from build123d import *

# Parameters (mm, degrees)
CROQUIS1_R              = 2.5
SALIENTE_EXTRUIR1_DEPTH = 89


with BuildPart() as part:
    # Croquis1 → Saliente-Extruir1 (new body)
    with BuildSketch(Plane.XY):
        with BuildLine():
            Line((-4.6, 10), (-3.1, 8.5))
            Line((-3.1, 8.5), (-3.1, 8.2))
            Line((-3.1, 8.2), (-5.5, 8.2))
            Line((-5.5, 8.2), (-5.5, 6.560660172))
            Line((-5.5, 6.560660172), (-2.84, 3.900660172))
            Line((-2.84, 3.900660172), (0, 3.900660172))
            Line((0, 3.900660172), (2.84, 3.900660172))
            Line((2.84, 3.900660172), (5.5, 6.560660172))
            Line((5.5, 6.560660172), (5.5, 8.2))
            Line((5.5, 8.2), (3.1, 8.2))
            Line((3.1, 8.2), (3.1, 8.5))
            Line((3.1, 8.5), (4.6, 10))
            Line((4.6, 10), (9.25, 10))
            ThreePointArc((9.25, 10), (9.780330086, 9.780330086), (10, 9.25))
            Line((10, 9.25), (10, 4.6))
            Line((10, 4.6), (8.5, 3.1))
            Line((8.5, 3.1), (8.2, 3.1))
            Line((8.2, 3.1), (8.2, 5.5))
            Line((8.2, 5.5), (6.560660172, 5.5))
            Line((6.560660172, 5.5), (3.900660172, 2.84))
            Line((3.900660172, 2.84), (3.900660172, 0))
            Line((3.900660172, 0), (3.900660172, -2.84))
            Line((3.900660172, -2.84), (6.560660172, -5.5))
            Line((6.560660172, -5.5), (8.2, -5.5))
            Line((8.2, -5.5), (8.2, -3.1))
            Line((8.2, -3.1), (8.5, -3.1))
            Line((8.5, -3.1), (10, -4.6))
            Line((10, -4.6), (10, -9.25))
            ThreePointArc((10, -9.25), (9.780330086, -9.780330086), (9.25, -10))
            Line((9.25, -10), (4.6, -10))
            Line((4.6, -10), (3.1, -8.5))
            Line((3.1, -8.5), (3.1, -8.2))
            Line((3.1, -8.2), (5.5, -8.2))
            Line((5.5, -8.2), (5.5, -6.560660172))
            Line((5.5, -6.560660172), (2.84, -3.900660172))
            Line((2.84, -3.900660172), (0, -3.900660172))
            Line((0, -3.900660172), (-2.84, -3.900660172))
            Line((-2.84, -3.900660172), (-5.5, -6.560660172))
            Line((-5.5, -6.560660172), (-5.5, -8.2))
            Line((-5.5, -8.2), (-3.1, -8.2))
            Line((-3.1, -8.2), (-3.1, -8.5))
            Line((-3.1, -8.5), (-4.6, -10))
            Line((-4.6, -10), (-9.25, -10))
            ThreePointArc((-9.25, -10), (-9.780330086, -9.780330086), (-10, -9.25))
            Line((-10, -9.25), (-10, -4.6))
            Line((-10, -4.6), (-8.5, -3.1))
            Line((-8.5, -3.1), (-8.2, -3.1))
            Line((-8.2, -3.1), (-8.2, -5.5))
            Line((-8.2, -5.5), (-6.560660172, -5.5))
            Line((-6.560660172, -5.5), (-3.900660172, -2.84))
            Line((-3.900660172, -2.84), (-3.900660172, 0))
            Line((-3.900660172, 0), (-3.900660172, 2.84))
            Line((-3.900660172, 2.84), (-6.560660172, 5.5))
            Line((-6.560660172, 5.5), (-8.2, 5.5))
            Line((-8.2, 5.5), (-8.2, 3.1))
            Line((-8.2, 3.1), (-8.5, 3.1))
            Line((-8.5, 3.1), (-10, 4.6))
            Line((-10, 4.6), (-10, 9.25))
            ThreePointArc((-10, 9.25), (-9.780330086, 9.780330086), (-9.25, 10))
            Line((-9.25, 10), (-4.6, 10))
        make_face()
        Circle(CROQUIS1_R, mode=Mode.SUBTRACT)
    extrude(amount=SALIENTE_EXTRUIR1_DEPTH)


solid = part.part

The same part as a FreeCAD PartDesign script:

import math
import FreeCAD as App
import Part
import Sketcher

doc = App.newDocument("Part")
body = doc.addObject("PartDesign::Body", "Body")

sketch1 = body.newObject("Sketcher::SketchObject", "Sketch")
sketch1.AttachmentSupport = (doc.getObject("XY_Plane"), [""])
sketch1.MapMode = "FlatFace"
sketch1.addGeometry(Part.LineSegment(App.Vector(-3.1, 8.5, 0), App.Vector(-4.6, 10, 0)), False)
sketch1.addGeometry(Part.LineSegment(App.Vector(-4.6, 10, 0), App.Vector(-9.25, 10, 0)), False)
sketch1.addGeometry(Part.ArcOfCircle(Part.Circle(App.Vector(-9.25, 9.25, 0), App.Vector(0, 0, 1), 0.75), math.radians(90), math.radians(180)), False)
sketch1.addGeometry(Part.LineSegment(App.Vector(-10, 9.25, 0), App.Vector(-10, 4.6, 0)), False)
sketch1.addGeometry(Part.LineSegment(App.Vector(-10, 4.6, 0), App.Vector(-8.5, 3.1, 0)), False)
sketch1.addGeometry(Part.LineSegment(App.Vector(-8.5, 3.1, 0), App.Vector(-8.2, 3.1, 0)), False)
sketch1.addGeometry(Part.LineSegment(App.Vector(-8.2, 3.1, 0), App.Vector(-8.2, 5.5, 0)), False)
sketch1.addGeometry(Part.LineSegment(App.Vector(-8.2, 5.5, 0), App.Vector(-6.56, 5.5, 0)), False)
sketch1.addGeometry(Part.LineSegment(App.Vector(-6.56, 5.5, 0), App.Vector(-3.9, 2.84, 0)), False)
sketch1.addGeometry(Part.LineSegment(App.Vector(-3.9, 2.84, 0), App.Vector(-3.9, -2.84, 0)), False)
sketch1.addGeometry(Part.LineSegment(App.Vector(-3.9, -2.84, 0), App.Vector(-6.56, -5.5, 0)), False)
sketch1.addGeometry(Part.LineSegment(App.Vector(-6.56, -5.5, 0), App.Vector(-8.2, -5.5, 0)), False)
sketch1.addGeometry(Part.LineSegment(App.Vector(-8.2, -5.5, 0), App.Vector(-8.2, -3.1, 0)), False)
sketch1.addGeometry(Part.LineSegment(App.Vector(-8.2, -3.1, 0), App.Vector(-8.5, -3.1, 0)), False)
sketch1.addGeometry(Part.LineSegment(App.Vector(-8.5, -3.1, 0), App.Vector(-10, -4.6, 0)), False)
sketch1.addGeometry(Part.LineSegment(App.Vector(-10, -4.6, 0), App.Vector(-10, -9.25, 0)), False)
sketch1.addGeometry(Part.ArcOfCircle(Part.Circle(App.Vector(-9.25, -9.25, 0), App.Vector(0, 0, 1), 0.75), math.radians(180), math.radians(270)), False)
sketch1.addGeometry(Part.LineSegment(App.Vector(-9.25, -10, 0), App.Vector(-4.6, -10, 0)), False)
sketch1.addGeometry(Part.LineSegment(App.Vector(-4.6, -10, 0), App.Vector(-3.1, -8.5, 0)), False)
sketch1.addGeometry(Part.LineSegment(App.Vector(-3.1, -8.5, 0), App.Vector(-3.1, -8.2, 0)), False)
sketch1.addGeometry(Part.LineSegment(App.Vector(-3.1, -8.2, 0), App.Vector(-5.5, -8.2, 0)), False)
sketch1.addGeometry(Part.LineSegment(App.Vector(-5.5, -8.2, 0), App.Vector(-5.5, -6.56, 0)), False)
sketch1.addGeometry(Part.LineSegment(App.Vector(-5.5, -6.56, 0), App.Vector(-2.84, -3.9, 0)), False)
sketch1.addGeometry(Part.LineSegment(App.Vector(-2.84, -3.9, 0), App.Vector(2.84, -3.9, 0)), False)
sketch1.addGeometry(Part.LineSegment(App.Vector(2.84, -3.9, 0), App.Vector(5.5, -6.56, 0)), False)
sketch1.addGeometry(Part.LineSegment(App.Vector(5.5, -6.56, 0), App.Vector(5.5, -8.2, 0)), False)
sketch1.addGeometry(Part.LineSegment(App.Vector(5.5, -8.2, 0), App.Vector(3.1, -8.2, 0)), False)
sketch1.addGeometry(Part.LineSegment(App.Vector(3.1, -8.2, 0), App.Vector(3.1, -8.5, 0)), False)
sketch1.addGeometry(Part.LineSegment(App.Vector(3.1, -8.5, 0), App.Vector(4.6, -10, 0)), False)
sketch1.addGeometry(Part.LineSegment(App.Vector(4.6, -10, 0), App.Vector(9.25, -10, 0)), False)
sketch1.addGeometry(Part.ArcOfCircle(Part.Circle(App.Vector(9.25, -9.25, 0), App.Vector(0, 0, 1), 0.75), math.radians(-90), math.radians(0)), False)
sketch1.addGeometry(Part.LineSegment(App.Vector(10, -9.25, 0), App.Vector(10, -4.6, 0)), False)
sketch1.addGeometry(Part.LineSegment(App.Vector(10, -4.6, 0), App.Vector(8.5, -3.1, 0)), False)
sketch1.addGeometry(Part.LineSegment(App.Vector(8.5, -3.1, 0), App.Vector(8.2, -3.1, 0)), False)
sketch1.addGeometry(Part.LineSegment(App.Vector(8.2, -3.1, 0), App.Vector(8.2, -5.5, 0)), False)
sketch1.addGeometry(Part.LineSegment(App.Vector(8.2, -5.5, 0), App.Vector(6.56, -5.5, 0)), False)
sketch1.addGeometry(Part.LineSegment(App.Vector(6.56, -5.5, 0), App.Vector(3.9, -2.84, 0)), False)
sketch1.addGeometry(Part.LineSegment(App.Vector(3.9, -2.84, 0), App.Vector(3.9, 2.84, 0)), False)
sketch1.addGeometry(Part.LineSegment(App.Vector(3.9, 2.84, 0), App.Vector(6.56, 5.5, 0)), False)
sketch1.addGeometry(Part.LineSegment(App.Vector(6.56, 5.5, 0), App.Vector(8.2, 5.5, 0)), False)
sketch1.addGeometry(Part.LineSegment(App.Vector(8.2, 5.5, 0), App.Vector(8.2, 3.1, 0)), False)
sketch1.addGeometry(Part.LineSegment(App.Vector(8.2, 3.1, 0), App.Vector(8.5, 3.1, 0)), False)
sketch1.addGeometry(Part.LineSegment(App.Vector(8.5, 3.1, 0), App.Vector(10, 4.6, 0)), False)
sketch1.addGeometry(Part.LineSegment(App.Vector(10, 4.6, 0), App.Vector(10, 9.25, 0)), False)
sketch1.addGeometry(Part.ArcOfCircle(Part.Circle(App.Vector(9.25, 9.25, 0), App.Vector(0, 0, 1), 0.75), math.radians(0), math.radians(90)), False)
sketch1.addGeometry(Part.LineSegment(App.Vector(9.25, 10, 0), App.Vector(4.6, 10, 0)), False)
sketch1.addGeometry(Part.LineSegment(App.Vector(4.6, 10, 0), App.Vector(3.1, 8.5, 0)), False)
sketch1.addGeometry(Part.LineSegment(App.Vector(3.1, 8.5, 0), App.Vector(3.1, 8.2, 0)), False)
sketch1.addGeometry(Part.LineSegment(App.Vector(3.1, 8.2, 0), App.Vector(5.5, 8.2, 0)), False)
sketch1.addGeometry(Part.LineSegment(App.Vector(5.5, 8.2, 0), App.Vector(5.5, 6.56, 0)), False)
sketch1.addGeometry(Part.LineSegment(App.Vector(5.5, 6.56, 0), App.Vector(2.84, 3.9, 0)), False)
sketch1.addGeometry(Part.LineSegment(App.Vector(2.84, 3.9, 0), App.Vector(-2.84, 3.9, 0)), False)
sketch1.addGeometry(Part.LineSegment(App.Vector(-2.84, 3.9, 0), App.Vector(-5.5, 6.56, 0)), False)
sketch1.addGeometry(Part.LineSegment(App.Vector(-5.5, 6.56, 0), App.Vector(-5.5, 8.2, 0)), False)
sketch1.addGeometry(Part.LineSegment(App.Vector(-5.5, 8.2, 0), App.Vector(-3.1, 8.2, 0)), False)
sketch1.addGeometry(Part.LineSegment(App.Vector(-3.1, 8.2, 0), App.Vector(-3.1, 8.5, 0)), False)
sketch1.addGeometry(Part.Circle(App.Vector(0, 0, 0), App.Vector(0, 0, 1), 2.5), False)
sketch1.addConstraint(Sketcher.Constraint("Coincident", 0, 2, 1, 1))
sketch1.addConstraint(Sketcher.Constraint("Tangent", 1, 2, 2, 1))
sketch1.addConstraint(Sketcher.Constraint("Tangent", 2, 2, 3, 1))
sketch1.addConstraint(Sketcher.Constraint("Coincident", 3, 2, 4, 1))
sketch1.addConstraint(Sketcher.Constraint("Coincident", 4, 2, 5, 1))
sketch1.addConstraint(Sketcher.Constraint("Coincident", 5, 2, 6, 1))
sketch1.addConstraint(Sketcher.Constraint("Coincident", 6, 2, 7, 1))
sketch1.addConstraint(Sketcher.Constraint("Coincident", 7, 2, 8, 1))
sketch1.addConstraint(Sketcher.Constraint("Coincident", 8, 2, 9, 1))
sketch1.addConstraint(Sketcher.Constraint("Coincident", 9, 2, 10, 1))
sketch1.addConstraint(Sketcher.Constraint("Coincident", 10, 2, 11, 1))
sketch1.addConstraint(Sketcher.Constraint("Coincident", 11, 2, 12, 1))
sketch1.addConstraint(Sketcher.Constraint("Coincident", 12, 2, 13, 1))
sketch1.addConstraint(Sketcher.Constraint("Coincident", 13, 2, 14, 1))
sketch1.addConstraint(Sketcher.Constraint("Coincident", 14, 2, 15, 1))
sketch1.addConstraint(Sketcher.Constraint("Tangent", 15, 2, 16, 1))
sketch1.addConstraint(Sketcher.Constraint("Tangent", 16, 2, 17, 1))
sketch1.addConstraint(Sketcher.Constraint("Coincident", 17, 2, 18, 1))
sketch1.addConstraint(Sketcher.Constraint("Coincident", 18, 2, 19, 1))
sketch1.addConstraint(Sketcher.Constraint("Coincident", 19, 2, 20, 1))
sketch1.addConstraint(Sketcher.Constraint("Coincident", 20, 2, 21, 1))
sketch1.addConstraint(Sketcher.Constraint("Coincident", 21, 2, 22, 1))
sketch1.addConstraint(Sketcher.Constraint("Coincident", 22, 2, 23, 1))
sketch1.addConstraint(Sketcher.Constraint("Coincident", 23, 2, 24, 1))
sketch1.addConstraint(Sketcher.Constraint("Coincident", 24, 2, 25, 1))
sketch1.addConstraint(Sketcher.Constraint("Coincident", 25, 2, 26, 1))
sketch1.addConstraint(Sketcher.Constraint("Coincident", 26, 2, 27, 1))
sketch1.addConstraint(Sketcher.Constraint("Coincident", 27, 2, 28, 1))
sketch1.addConstraint(Sketcher.Constraint("Coincident", 28, 2, 29, 1))
sketch1.addConstraint(Sketcher.Constraint("Tangent", 29, 2, 30, 1))
sketch1.addConstraint(Sketcher.Constraint("Tangent", 30, 2, 31, 1))
sketch1.addConstraint(Sketcher.Constraint("Coincident", 31, 2, 32, 1))
sketch1.addConstraint(Sketcher.Constraint("Coincident", 32, 2, 33, 1))
sketch1.addConstraint(Sketcher.Constraint("Coincident", 33, 2, 34, 1))
sketch1.addConstraint(Sketcher.Constraint("Coincident", 34, 2, 35, 1))
sketch1.addConstraint(Sketcher.Constraint("Coincident", 35, 2, 36, 1))
sketch1.addConstraint(Sketcher.Constraint("Coincident", 36, 2, 37, 1))
sketch1.addConstraint(Sketcher.Constraint("Coincident", 37, 2, 38, 1))
sketch1.addConstraint(Sketcher.Constraint("Coincident", 38, 2, 39, 1))
sketch1.addConstraint(Sketcher.Constraint("Coincident", 39, 2, 40, 1))
sketch1.addConstraint(Sketcher.Constraint("Coincident", 40, 2, 41, 1))
sketch1.addConstraint(Sketcher.Constraint("Coincident", 41, 2, 42, 1))
sketch1.addConstraint(Sketcher.Constraint("Coincident", 42, 2, 43, 1))
sketch1.addConstraint(Sketcher.Constraint("Tangent", 43, 2, 44, 1))
sketch1.addConstraint(Sketcher.Constraint("Tangent", 44, 2, 45, 1))
sketch1.addConstraint(Sketcher.Constraint("Coincident", 45, 2, 46, 1))
sketch1.addConstraint(Sketcher.Constraint("Coincident", 46, 2, 47, 1))
sketch1.addConstraint(Sketcher.Constraint("Coincident", 47, 2, 48, 1))
sketch1.addConstraint(Sketcher.Constraint("Coincident", 48, 2, 49, 1))
sketch1.addConstraint(Sketcher.Constraint("Coincident", 49, 2, 50, 1))
sketch1.addConstraint(Sketcher.Constraint("Coincident", 50, 2, 51, 1))
sketch1.addConstraint(Sketcher.Constraint("Coincident", 51, 2, 52, 1))
sketch1.addConstraint(Sketcher.Constraint("Coincident", 52, 2, 53, 1))
sketch1.addConstraint(Sketcher.Constraint("Coincident", 53, 2, 54, 1))
sketch1.addConstraint(Sketcher.Constraint("Coincident", 54, 2, 55, 1))
sketch1.addConstraint(Sketcher.Constraint("Coincident", 55, 2, 0, 1))
sketch1.addConstraint(Sketcher.Constraint("Horizontal", 1))
sketch1.addConstraint(Sketcher.Constraint("Vertical", 3))
sketch1.addConstraint(Sketcher.Constraint("Horizontal", 5))
sketch1.addConstraint(Sketcher.Constraint("Vertical", 6))
sketch1.addConstraint(Sketcher.Constraint("Horizontal", 7))
sketch1.addConstraint(Sketcher.Constraint("Vertical", 9))
sketch1.addConstraint(Sketcher.Constraint("Horizontal", 11))
sketch1.addConstraint(Sketcher.Constraint("Vertical", 12))
sketch1.addConstraint(Sketcher.Constraint("Horizontal", 13))
sketch1.addConstraint(Sketcher.Constraint("Vertical", 15))
sketch1.addConstraint(Sketcher.Constraint("Horizontal", 17))
sketch1.addConstraint(Sketcher.Constraint("Vertical", 19))
sketch1.addConstraint(Sketcher.Constraint("Horizontal", 20))
sketch1.addConstraint(Sketcher.Constraint("Vertical", 21))
sketch1.addConstraint(Sketcher.Constraint("Horizontal", 23))
sketch1.addConstraint(Sketcher.Constraint("Vertical", 25))
sketch1.addConstraint(Sketcher.Constraint("Horizontal", 26))
sketch1.addConstraint(Sketcher.Constraint("Vertical", 27))
sketch1.addConstraint(Sketcher.Constraint("Horizontal", 29))
sketch1.addConstraint(Sketcher.Constraint("Vertical", 31))
sketch1.addConstraint(Sketcher.Constraint("Horizontal", 33))
sketch1.addConstraint(Sketcher.Constraint("Vertical", 34))
sketch1.addConstraint(Sketcher.Constraint("Horizontal", 35))
sketch1.addConstraint(Sketcher.Constraint("Vertical", 37))
sketch1.addConstraint(Sketcher.Constraint("Horizontal", 39))
sketch1.addConstraint(Sketcher.Constraint("Vertical", 40))
sketch1.addConstraint(Sketcher.Constraint("Horizontal", 41))
sketch1.addConstraint(Sketcher.Constraint("Vertical", 43))
sketch1.addConstraint(Sketcher.Constraint("Horizontal", 45))
sketch1.addConstraint(Sketcher.Constraint("Vertical", 47))
sketch1.addConstraint(Sketcher.Constraint("Horizontal", 48))
sketch1.addConstraint(Sketcher.Constraint("Vertical", 49))
sketch1.addConstraint(Sketcher.Constraint("Horizontal", 51))
sketch1.addConstraint(Sketcher.Constraint("Vertical", 53))
sketch1.addConstraint(Sketcher.Constraint("Horizontal", 54))
sketch1.addConstraint(Sketcher.Constraint("Vertical", 55))
sketch1.addConstraint(Sketcher.Constraint("Coincident", 56, 3, -1, 1))
sketch1.addConstraint(Sketcher.Constraint("Equal", 2, 16))
sketch1.addConstraint(Sketcher.Constraint("Equal", 16, 30))
sketch1.addConstraint(Sketcher.Constraint("Equal", 30, 44))
sketch1.addConstraint(Sketcher.Constraint("Symmetric", 2, 3, 30, 3, -1, 1))
sketch1.addConstraint(Sketcher.Constraint("Symmetric", 16, 3, 44, 3, -1, 1))
sketch1.addConstraint(Sketcher.Constraint("Symmetric", 4, 2, 32, 2, -1, 1))
sketch1.addConstraint(Sketcher.Constraint("Symmetric", 6, 2, 34, 2, -1, 1))
sketch1.addConstraint(Sketcher.Constraint("Symmetric", 8, 2, 36, 2, -1, 1))
sketch1.addConstraint(Sketcher.Constraint("Symmetric", 10, 2, 38, 2, -1, 1))
sketch1.addConstraint(Sketcher.Constraint("Symmetric", 12, 2, 40, 2, -1, 1))
sketch1.addConstraint(Sketcher.Constraint("Symmetric", 18, 2, 46, 2, -1, 1))
sketch1.addConstraint(Sketcher.Constraint("Symmetric", 20, 2, 48, 2, -1, 1))
sketch1.addConstraint(Sketcher.Constraint("Symmetric", 22, 2, 50, 2, -1, 1))
sketch1.addConstraint(Sketcher.Constraint("Symmetric", 24, 2, 52, 2, -1, 1))
sketch1.addConstraint(Sketcher.Constraint("Symmetric", 26, 2, 54, 2, -1, 1))
sketch1.addConstraint(Sketcher.Constraint("Symmetric", 16, 3, 30, 3, -2))
sketch1.addConstraint(Sketcher.Constraint("Symmetric", 21, 2, 24, 2, -2))
sketch1.addConstraint(Sketcher.Constraint("Symmetric", 19, 2, 26, 2, -2))
sketch1.addConstraint(Sketcher.Constraint("Symmetric", 13, 2, 32, 2, -2))
sketch1.addConstraint(Sketcher.Constraint("Symmetric", 11, 2, 34, 2, -2))
sketch1.addConstraint(Sketcher.Constraint("Parallel", 0, 4))
sketch1.addConstraint(Sketcher.Constraint("Parallel", 4, 8))
sketch1.addConstraint(Sketcher.Constraint("Perpendicular", 8, 10))
sketch1.addConstraint(Sketcher.Constraint("Parallel", 10, 14))
sketch1.addConstraint(Sketcher.Constraint("Parallel", 14, 18))
sketch1.addConstraint(Sketcher.Constraint("Parallel", 18, 22))
sketch1.addConstraint(Sketcher.Constraint("Perpendicular", 22, 24))
sketch1.addConstraint(Sketcher.Constraint("Parallel", 24, 28))
sketch1.addConstraint(Sketcher.Constraint("Parallel", 28, 32))
sketch1.addConstraint(Sketcher.Constraint("Parallel", 32, 36))
sketch1.addConstraint(Sketcher.Constraint("Perpendicular", 36, 38))
sketch1.addConstraint(Sketcher.Constraint("Parallel", 38, 42))
sketch1.addConstraint(Sketcher.Constraint("Parallel", 42, 46))
sketch1.addConstraint(Sketcher.Constraint("Parallel", 46, 50))
sketch1.addConstraint(Sketcher.Constraint("Perpendicular", 50, 52))
sketch1.addConstraint(Sketcher.Constraint("Horizontal", 18, 2, 27, 2))
sketch1.addConstraint(Sketcher.Constraint("Horizontal", 14, 2, 31, 2))
sketch1.addConstraint(Sketcher.Constraint("Horizontal", 9, 2, 36, 2))
sketch1.addConstraint(Sketcher.Constraint("Horizontal", 3, 2, 42, 2))
sketch1.addConstraint(Sketcher.Constraint("Horizontal", 46, 2, 55, 2))
sketch1.addConstraint(Sketcher.Constraint("Equal", 45, 3))
sketch1.addConstraint(Sketcher.Constraint("Equal", 54, 6))
sketch1.addConstraint(Sketcher.Constraint("Equal", 51, 9))
sketch1.addConstraint(Sketcher.Constraint("Equal", 41, 19))
sketch1.addConstraint(Sketcher.Constraint("Equal", 39, 21))
sketch1.addConstraint(Sketcher.Constraint("Equal", 0, 4))
sketch1.addConstraint(Sketcher.Constraint("Equal", 10, 22))
sketch1.addConstraint(Sketcher.Constraint("Diameter", 56, 5.0))
sketch1.addConstraint(Sketcher.Constraint("Radius", 2, 0.75))
sketch1.addConstraint(Sketcher.Constraint("DistanceX", 5, 1, 5, 2, 0.3))
sketch1.addConstraint(Sketcher.Constraint("DistanceX", 20, 2, 20, 1, 2.4))
sketch1.addConstraint(Sketcher.Constraint("DistanceY", -1, 1, 0, 2, 10.0))
sketch1.addConstraint(Sketcher.Constraint("DistanceX", 1, 2, 1, 1, 4.65))
sketch1.addConstraint(Sketcher.Constraint("DistanceX", 23, 1, 23, 2, 5.68))
sketch1.addConstraint(Sketcher.Constraint("DistanceX", 4, 2, -1, 1, 8.5))
sketch1.addConstraint(Sketcher.Constraint("DistanceX", 7, 1, 7, 2, 1.63934))
pad1 = body.newObject("PartDesign::Pad", "Pad")
pad1.Profile = sketch1
pad1.Length = 89

doc.recompute()
